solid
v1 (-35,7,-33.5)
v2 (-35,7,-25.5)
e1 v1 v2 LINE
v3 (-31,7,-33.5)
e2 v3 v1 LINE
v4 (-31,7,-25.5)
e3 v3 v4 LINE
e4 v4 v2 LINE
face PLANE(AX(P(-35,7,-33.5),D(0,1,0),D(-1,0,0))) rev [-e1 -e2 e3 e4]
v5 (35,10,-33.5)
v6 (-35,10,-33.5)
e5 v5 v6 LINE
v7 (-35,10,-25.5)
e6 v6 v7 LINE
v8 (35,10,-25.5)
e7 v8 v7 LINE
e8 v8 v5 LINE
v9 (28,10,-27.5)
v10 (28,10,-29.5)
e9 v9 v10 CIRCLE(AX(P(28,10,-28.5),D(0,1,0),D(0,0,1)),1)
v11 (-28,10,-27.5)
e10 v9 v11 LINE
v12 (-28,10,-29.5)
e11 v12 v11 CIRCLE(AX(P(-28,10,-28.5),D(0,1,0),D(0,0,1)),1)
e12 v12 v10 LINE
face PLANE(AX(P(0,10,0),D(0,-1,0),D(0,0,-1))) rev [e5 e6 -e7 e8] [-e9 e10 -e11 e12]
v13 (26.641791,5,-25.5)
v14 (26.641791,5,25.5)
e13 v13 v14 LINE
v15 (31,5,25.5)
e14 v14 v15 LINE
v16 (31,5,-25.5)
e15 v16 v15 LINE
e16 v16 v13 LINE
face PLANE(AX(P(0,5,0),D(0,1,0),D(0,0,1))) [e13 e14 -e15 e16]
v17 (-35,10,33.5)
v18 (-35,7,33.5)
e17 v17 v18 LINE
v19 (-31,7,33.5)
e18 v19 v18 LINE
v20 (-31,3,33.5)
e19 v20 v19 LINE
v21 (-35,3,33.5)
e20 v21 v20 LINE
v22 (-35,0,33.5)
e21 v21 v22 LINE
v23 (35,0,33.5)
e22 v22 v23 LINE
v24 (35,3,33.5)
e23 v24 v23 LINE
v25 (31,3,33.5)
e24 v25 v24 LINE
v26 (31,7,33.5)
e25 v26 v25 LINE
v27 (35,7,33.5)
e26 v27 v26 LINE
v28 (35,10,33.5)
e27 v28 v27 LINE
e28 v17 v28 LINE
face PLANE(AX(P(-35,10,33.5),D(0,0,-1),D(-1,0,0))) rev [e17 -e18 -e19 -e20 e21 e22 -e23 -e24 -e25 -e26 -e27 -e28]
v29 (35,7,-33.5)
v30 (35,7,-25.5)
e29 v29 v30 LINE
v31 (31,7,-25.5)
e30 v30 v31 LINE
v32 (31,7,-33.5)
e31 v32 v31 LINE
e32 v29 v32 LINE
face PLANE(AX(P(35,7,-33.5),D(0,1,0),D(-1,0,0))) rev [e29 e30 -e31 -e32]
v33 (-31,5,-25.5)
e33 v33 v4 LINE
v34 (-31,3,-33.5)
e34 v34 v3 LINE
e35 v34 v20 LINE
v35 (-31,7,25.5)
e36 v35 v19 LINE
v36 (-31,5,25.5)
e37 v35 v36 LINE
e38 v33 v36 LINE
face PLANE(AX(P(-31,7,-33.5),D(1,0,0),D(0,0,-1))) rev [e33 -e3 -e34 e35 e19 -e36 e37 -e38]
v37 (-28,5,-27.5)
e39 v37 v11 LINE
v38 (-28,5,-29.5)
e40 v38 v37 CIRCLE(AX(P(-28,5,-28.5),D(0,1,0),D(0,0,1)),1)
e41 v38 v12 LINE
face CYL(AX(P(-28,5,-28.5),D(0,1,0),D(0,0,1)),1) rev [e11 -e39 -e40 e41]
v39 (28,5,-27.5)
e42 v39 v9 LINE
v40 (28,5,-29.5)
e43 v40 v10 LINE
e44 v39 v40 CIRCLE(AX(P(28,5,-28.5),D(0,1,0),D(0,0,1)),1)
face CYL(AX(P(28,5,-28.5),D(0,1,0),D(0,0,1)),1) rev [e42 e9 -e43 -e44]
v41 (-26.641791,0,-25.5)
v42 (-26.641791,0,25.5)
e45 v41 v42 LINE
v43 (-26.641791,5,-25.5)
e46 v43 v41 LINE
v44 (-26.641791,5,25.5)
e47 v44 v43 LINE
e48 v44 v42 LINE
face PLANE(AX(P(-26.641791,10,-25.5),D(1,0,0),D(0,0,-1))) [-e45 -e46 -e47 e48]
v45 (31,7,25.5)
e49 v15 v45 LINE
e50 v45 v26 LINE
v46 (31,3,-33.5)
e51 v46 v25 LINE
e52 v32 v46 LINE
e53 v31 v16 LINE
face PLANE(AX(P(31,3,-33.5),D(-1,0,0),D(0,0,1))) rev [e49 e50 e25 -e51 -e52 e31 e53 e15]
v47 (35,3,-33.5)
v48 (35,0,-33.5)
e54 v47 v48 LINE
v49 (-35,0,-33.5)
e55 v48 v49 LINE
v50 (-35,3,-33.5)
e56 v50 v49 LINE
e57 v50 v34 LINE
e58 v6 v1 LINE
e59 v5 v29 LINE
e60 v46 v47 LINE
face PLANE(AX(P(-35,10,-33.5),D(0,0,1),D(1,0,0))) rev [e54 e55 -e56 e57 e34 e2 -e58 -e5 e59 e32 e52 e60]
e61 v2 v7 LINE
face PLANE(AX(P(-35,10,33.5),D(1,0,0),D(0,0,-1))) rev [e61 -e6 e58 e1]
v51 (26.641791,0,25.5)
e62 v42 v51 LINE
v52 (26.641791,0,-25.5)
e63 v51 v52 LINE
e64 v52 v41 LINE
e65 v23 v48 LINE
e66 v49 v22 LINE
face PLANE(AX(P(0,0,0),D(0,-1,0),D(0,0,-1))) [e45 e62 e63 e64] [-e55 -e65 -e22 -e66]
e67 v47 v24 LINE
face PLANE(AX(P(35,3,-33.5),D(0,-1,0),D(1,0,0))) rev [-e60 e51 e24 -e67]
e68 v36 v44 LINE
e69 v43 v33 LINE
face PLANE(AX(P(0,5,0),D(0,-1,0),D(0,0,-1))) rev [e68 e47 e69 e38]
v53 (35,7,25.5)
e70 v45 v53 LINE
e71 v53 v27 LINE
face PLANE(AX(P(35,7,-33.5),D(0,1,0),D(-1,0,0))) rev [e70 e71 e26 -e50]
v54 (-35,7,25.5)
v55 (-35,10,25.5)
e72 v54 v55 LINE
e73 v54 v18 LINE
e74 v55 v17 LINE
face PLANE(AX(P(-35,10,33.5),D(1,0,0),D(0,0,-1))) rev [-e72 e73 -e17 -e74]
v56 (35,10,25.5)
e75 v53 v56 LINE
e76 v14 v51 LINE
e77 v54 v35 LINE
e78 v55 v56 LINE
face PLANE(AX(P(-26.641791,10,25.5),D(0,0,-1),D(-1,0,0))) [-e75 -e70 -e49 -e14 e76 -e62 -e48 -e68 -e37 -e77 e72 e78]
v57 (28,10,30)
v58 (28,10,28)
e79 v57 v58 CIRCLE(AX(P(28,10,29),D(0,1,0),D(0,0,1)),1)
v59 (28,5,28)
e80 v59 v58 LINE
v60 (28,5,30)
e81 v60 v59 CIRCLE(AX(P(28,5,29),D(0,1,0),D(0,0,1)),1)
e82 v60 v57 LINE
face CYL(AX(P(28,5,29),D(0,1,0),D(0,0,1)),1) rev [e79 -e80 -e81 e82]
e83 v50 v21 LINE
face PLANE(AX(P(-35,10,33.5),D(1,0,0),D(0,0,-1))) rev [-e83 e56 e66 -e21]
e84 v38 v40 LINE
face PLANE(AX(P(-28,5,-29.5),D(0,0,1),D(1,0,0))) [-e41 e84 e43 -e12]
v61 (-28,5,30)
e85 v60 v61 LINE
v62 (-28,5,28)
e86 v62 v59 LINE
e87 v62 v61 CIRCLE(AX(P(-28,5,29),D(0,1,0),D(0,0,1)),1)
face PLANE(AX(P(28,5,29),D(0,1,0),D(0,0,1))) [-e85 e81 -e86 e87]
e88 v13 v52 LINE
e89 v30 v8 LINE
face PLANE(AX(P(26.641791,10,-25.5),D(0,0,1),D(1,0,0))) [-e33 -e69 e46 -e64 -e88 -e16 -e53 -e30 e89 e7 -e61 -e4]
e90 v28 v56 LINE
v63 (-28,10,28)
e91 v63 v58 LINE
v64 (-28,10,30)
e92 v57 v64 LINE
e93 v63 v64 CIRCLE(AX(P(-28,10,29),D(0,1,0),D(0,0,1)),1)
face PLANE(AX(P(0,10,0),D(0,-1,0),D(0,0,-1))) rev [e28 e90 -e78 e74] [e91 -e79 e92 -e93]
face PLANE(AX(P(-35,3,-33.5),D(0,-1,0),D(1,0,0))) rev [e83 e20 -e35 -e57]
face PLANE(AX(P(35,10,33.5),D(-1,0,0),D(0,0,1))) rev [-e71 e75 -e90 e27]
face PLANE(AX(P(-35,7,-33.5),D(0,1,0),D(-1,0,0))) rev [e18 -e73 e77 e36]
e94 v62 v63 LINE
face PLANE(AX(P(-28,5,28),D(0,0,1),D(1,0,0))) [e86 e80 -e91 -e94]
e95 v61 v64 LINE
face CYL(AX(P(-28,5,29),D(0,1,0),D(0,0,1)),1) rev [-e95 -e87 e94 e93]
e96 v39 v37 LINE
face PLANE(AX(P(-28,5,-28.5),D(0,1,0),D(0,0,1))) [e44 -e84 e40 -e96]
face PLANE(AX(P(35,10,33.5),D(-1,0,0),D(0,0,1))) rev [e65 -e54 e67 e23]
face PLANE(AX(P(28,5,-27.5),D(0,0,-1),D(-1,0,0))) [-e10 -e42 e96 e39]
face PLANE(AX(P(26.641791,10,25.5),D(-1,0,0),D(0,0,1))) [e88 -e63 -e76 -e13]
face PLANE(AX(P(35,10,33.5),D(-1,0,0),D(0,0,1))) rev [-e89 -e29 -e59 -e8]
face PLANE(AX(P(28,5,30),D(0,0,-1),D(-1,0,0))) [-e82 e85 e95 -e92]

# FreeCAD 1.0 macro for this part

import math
import FreeCAD as App
import Part
import Sketcher
Q = App.Units.Quantity


def add_polygon(sketch, points):
    """Adds a closed chain of lines whose ends are joined by coincident constraints."""
    first, n = sketch.GeometryCount, len(points)
    for a, b in zip(points, points[1:] + points[:1]):
        sketch.addGeometry(Part.LineSegment(App.Vector(*a, 0), App.Vector(*b, 0)), False)
    for i in range(n):
        sketch.addConstraint(Sketcher.Constraint("Coincident", first + i, 2, first + (i + 1) % n, 1))

doc = App.newDocument("Part")
body = doc.addObject("PartDesign::Body", "Body")

sketch1 = doc.addObject("Sketcher::SketchObject", "Sketch")
body.addObject(sketch1)
sketch1.AttachmentSupport = (doc.XZ_Plane, [""])
sketch1.MapMode = "FlatFace"
add_polygon(sketch1, [(-35, -34), (-35, 34), (35, 34), (35, -34)])
add_polygon(sketch1, [(27, 26), (-27, 26), (-27, -26), (27, -26)])
sketch1.addConstraint(Sketcher.Constraint("Vertical", 0))
sketch1.addConstraint(Sketcher.Constraint("Horizontal", 1))
sketch1.addConstraint(Sketcher.Constraint("Vertical", 2))
sketch1.addConstraint(Sketcher.Constraint("Horizontal", 3))
sketch1.addConstraint(Sketcher.Constraint("Horizontal", 4))
sketch1.addConstraint(Sketcher.Constraint("Vertical", 5))
sketch1.addConstraint(Sketcher.Constraint("Horizontal", 6))
sketch1.addConstraint(Sketcher.Constraint("Vertical", 7))
sketch1.addConstraint(Sketcher.Constraint("Symmetric", 0, 2, 2, 2, -1, 1))
sketch1.addConstraint(Sketcher.Constraint("Symmetric", 4, 2, 6, 2, -1, 1))
sketch1.addConstraint(Sketcher.Constraint("DistanceX", 1, 1, 1, 2, Q("70 mm")))
sketch1.addConstraint(Sketcher.Constraint("DistanceY", 0, 1, 0, 2, Q("67 mm")))
sketch1.addConstraint(Sketcher.Constraint("DistanceY", 5, 2, 5, 1, Q("51 mm")))
sketch1.addConstraint(Sketcher.Constraint("DistanceX", 4, 2, 4, 1, Q("53.283582 mm")))
pad1 = doc.addObject("PartDesign::Pad", "Pad")
body.addObject(pad1)
pad1.Profile = sketch1
pad1.Length = 10
pad1.Reversed = True

sketch2 = doc.addObject("Sketcher::SketchObject", "Sketch001")
body.addObject(sketch2)
sketch2.AttachmentSupport = (doc.XZ_Plane, [""])
sketch2.MapMode = "FlatFace"
sketch2.AttachmentOffset = App.Placement(App.Vector(0, 0, -10), App.Rotation())
add_polygon(sketch2, [(-35, -26), (-35, 26), (-27, 26), (-27, -26)])
add_polygon(sketch2, [(27, -26), (27, 26), (35, 26), (35, -26)])
sketch2.addConstraint(Sketcher.Constraint("Vertical", 0))
sketch2.addConstraint(Sketcher.Constraint("Horizontal", 1))
sketch2.addConstraint(Sketcher.Constraint("Vertical", 2))
sketch2.addConstraint(Sketcher.Constraint("Horizontal", 3))
sketch2.addConstraint(Sketcher.Constraint("Vertical", 4))
sketch2.addConstraint(Sketcher.Constraint("Horizontal", 5))
sketch2.addConstraint(Sketcher.Constraint("Vertical", 6))
sketch2.addConstraint(Sketcher.Constraint("Horizontal", 7))
sketch2.addConstraint(Sketcher.Constraint("Symmetric", 2, 2, 4, 2, -1, 1))
sketch2.addConstraint(Sketcher.Constraint("Symmetric", 0, 2, 6, 2, -1, 1))
sketch2.addConstraint(Sketcher.Constraint("Horizontal", 1, 2, 4, 2))
sketch2.addConstraint(Sketcher.Constraint("DistanceY", 0, 1, 0, 2, Q("51 mm")))
sketch2.addConstraint(Sketcher.Constraint("DistanceX", 0, 2, -1, 1, Q("35 mm")))
sketch2.addConstraint(Sketcher.Constraint("DistanceX", 1, 1, 1, 2, Q("8.358209 mm")))
pocket1 = doc.addObject("PartDesign::Pocket", "Pocket")
body.addObject(pocket1)
pocket1.Profile = sketch2
pocket1.Length = 5
pocket1.Reversed = True

sketch3 = doc.addObject("Sketcher::SketchObject", "Sketch002")
body.addObject(sketch3)
sketch3.AttachmentSupport = (doc.XY_Plane, [""])
sketch3.MapMode = "FlatFace"
sketch3.AttachmentOffset = App.Placement(App.Vector(0, 0, 33.5), App.Rotation())
add_polygon(sketch3, [(31, 7), (31, 3), (35, 3), (35, 7)])
add_polygon(sketch3, [(-35, 7), (-35, 3), (-31, 3), (-31, 7)])
sketch3.addConstraint(Sketcher.Constraint("Vertical", 0))
sketch3.addConstraint(Sketcher.Constraint("Horizontal", 1))
sketch3.addConstraint(Sketcher.Constraint("Vertical", 2))
sketch3.addConstraint(Sketcher.Constraint("Horizontal", 3))
sketch3.addConstraint(Sketcher.Constraint("Vertical", 4))
sketch3.addConstraint(Sketcher.Constraint("Horizontal", 5))
sketch3.addConstraint(Sketcher.Constraint("Vertical", 6))
sketch3.addConstraint(Sketcher.Constraint("Horizontal", 7))
sketch3.addConstraint(Sketcher.Constraint("Symmetric", 1, 2, 4, 2, -2))
sketch3.addConstraint(Sketcher.Constraint("Symmetric", 3, 2, 6, 2, -2))
sketch3.addConstraint(Sketcher.Constraint("Equal", 7, 0))
sketch3.addConstraint(Sketcher.Constraint("DistanceX", 1, 1, 1, 2, Q("4 mm")))
sketch3.addConstraint(Sketcher.Constraint("DistanceX", -1, 1, 0, 2, Q("31 mm")))
sketch3.addConstraint(Sketcher.Constraint("DistanceY", -1, 1, 0, 2, Q("3 mm")))
pocket2 = doc.addObject("PartDesign::Pocket", "Pocket001")
body.addObject(pocket2)
pocket2.Profile = sketch3
pocket2.Type = "ThroughAll"

sketch4 = doc.addObject("Sketcher::SketchObject", "Sketch003")
body.addObject(sketch4)
sketch4.AttachmentSupport = (doc.XZ_Plane, [""])
sketch4.MapMode = "FlatFace"
sketch4.AttachmentOffset = App.Placement(App.Vector(0, 0, -10), App.Rotation())
sketch4.addGeometry(Part.LineSegment(App.Vector(28, -29.5, 0), App.Vector(-28, -29.5, 0)), False)
sketch4.addGeometry(Part.ArcOfCircle(Part.Circle(App.Vector(-28, -28.5, 0), App.Vector(0, 0, 1), 1), math.radians(90), math.radians(270)), False)
sketch4.addGeometry(Part.LineSegment(App.Vector(-28, -27.5, 0), App.Vector(28, -27.5, 0)), False)
sketch4.addGeometry(Part.ArcOfCircle(Part.Circle(App.Vector(28, -28.5, 0), App.Vector(0, 0, 1), 1), math.radians(-90), math.radians(90)), False)
sketch4.addGeometry(Part.LineSegment(App.Vector(-28, 30, 0), App.Vector(28, 30, 0)), False)
sketch4.addGeometry(Part.ArcOfCircle(Part.Circle(App.Vector(28, 29, 0), App.Vector(0, 0, 1), 1), math.radians(-90), math.radians(90)), False)
sketch4.addGeometry(Part.LineSegment(App.Vector(28, 28, 0), App.Vector(-28, 28, 0)), False)
sketch4.addGeometry(Part.ArcOfCircle(Part.Circle(App.Vector(-28, 29, 0), App.Vector(0, 0, 1), 1), math.radians(90), math.radians(270)), False)
sketch4.addConstraint(Sketcher.Constraint("Tangent", 0, 2, 1, 2))
sketch4.addConstraint(Sketcher.Constraint("Tangent", 1, 1, 2, 1))
sketch4.addConstraint(Sketcher.Constraint("Tangent", 2, 2, 3, 2))
sketch4.addConstraint(Sketcher.Constraint("Tangent", 3, 1, 0, 1))
sketch4.addConstraint(Sketcher.Constraint("Tangent", 4, 2, 5, 2))
sketch4.addConstraint(Sketcher.Constraint("Tangent", 5, 1, 6, 1))
sketch4.addConstraint(Sketcher.Constraint("Tangent", 6, 2, 7, 2))
sketch4.addConstraint(Sketcher.Constraint("Tangent", 7, 1, 4, 1))
sketch4.addConstraint(Sketcher.Constraint("Horizontal", 0))
sketch4.addConstraint(Sketcher.Constraint("Horizontal", 2))
sketch4.addConstraint(Sketcher.Constraint("Horizontal", 4))
sketch4.addConstraint(Sketcher.Constraint("Horizontal", 6))
sketch4.addConstraint(Sketcher.Constraint("Equal", 3, 5))
sketch4.addConstraint(Sketcher.Constraint("Vertical", 3, 3, 5, 3))
sketch4.addConstraint(Sketcher.Constraint("Vertical", 1, 3, 7, 3))
sketch4.addConstraint(Sketcher.Constraint("Radius", 1, Q("1 mm")))
sketch4.addConstraint(Sketcher.Constraint("DistanceX", 0, 2, 0, 1, Q("56 mm")))
sketch4.addConstraint(Sketcher.Constraint("DistanceX", 1, 3, -1, 1, Q("28 mm")))
sketch4.addConstraint(Sketcher.Constraint("DistanceY", -1, 1, 5, 3, Q("29 mm")))
sketch4.addConstraint(Sketcher.Constraint("DistanceY", 1, 3, -1, 1, Q("28.5 mm")))
pocket3 = doc.addObject("PartDesign::Pocket", "Pocket002")
body.addObject(pocket3)
pocket3.Profile = sketch4
pocket3.Length = 5
pocket3.Reversed = True

doc.recompute()
